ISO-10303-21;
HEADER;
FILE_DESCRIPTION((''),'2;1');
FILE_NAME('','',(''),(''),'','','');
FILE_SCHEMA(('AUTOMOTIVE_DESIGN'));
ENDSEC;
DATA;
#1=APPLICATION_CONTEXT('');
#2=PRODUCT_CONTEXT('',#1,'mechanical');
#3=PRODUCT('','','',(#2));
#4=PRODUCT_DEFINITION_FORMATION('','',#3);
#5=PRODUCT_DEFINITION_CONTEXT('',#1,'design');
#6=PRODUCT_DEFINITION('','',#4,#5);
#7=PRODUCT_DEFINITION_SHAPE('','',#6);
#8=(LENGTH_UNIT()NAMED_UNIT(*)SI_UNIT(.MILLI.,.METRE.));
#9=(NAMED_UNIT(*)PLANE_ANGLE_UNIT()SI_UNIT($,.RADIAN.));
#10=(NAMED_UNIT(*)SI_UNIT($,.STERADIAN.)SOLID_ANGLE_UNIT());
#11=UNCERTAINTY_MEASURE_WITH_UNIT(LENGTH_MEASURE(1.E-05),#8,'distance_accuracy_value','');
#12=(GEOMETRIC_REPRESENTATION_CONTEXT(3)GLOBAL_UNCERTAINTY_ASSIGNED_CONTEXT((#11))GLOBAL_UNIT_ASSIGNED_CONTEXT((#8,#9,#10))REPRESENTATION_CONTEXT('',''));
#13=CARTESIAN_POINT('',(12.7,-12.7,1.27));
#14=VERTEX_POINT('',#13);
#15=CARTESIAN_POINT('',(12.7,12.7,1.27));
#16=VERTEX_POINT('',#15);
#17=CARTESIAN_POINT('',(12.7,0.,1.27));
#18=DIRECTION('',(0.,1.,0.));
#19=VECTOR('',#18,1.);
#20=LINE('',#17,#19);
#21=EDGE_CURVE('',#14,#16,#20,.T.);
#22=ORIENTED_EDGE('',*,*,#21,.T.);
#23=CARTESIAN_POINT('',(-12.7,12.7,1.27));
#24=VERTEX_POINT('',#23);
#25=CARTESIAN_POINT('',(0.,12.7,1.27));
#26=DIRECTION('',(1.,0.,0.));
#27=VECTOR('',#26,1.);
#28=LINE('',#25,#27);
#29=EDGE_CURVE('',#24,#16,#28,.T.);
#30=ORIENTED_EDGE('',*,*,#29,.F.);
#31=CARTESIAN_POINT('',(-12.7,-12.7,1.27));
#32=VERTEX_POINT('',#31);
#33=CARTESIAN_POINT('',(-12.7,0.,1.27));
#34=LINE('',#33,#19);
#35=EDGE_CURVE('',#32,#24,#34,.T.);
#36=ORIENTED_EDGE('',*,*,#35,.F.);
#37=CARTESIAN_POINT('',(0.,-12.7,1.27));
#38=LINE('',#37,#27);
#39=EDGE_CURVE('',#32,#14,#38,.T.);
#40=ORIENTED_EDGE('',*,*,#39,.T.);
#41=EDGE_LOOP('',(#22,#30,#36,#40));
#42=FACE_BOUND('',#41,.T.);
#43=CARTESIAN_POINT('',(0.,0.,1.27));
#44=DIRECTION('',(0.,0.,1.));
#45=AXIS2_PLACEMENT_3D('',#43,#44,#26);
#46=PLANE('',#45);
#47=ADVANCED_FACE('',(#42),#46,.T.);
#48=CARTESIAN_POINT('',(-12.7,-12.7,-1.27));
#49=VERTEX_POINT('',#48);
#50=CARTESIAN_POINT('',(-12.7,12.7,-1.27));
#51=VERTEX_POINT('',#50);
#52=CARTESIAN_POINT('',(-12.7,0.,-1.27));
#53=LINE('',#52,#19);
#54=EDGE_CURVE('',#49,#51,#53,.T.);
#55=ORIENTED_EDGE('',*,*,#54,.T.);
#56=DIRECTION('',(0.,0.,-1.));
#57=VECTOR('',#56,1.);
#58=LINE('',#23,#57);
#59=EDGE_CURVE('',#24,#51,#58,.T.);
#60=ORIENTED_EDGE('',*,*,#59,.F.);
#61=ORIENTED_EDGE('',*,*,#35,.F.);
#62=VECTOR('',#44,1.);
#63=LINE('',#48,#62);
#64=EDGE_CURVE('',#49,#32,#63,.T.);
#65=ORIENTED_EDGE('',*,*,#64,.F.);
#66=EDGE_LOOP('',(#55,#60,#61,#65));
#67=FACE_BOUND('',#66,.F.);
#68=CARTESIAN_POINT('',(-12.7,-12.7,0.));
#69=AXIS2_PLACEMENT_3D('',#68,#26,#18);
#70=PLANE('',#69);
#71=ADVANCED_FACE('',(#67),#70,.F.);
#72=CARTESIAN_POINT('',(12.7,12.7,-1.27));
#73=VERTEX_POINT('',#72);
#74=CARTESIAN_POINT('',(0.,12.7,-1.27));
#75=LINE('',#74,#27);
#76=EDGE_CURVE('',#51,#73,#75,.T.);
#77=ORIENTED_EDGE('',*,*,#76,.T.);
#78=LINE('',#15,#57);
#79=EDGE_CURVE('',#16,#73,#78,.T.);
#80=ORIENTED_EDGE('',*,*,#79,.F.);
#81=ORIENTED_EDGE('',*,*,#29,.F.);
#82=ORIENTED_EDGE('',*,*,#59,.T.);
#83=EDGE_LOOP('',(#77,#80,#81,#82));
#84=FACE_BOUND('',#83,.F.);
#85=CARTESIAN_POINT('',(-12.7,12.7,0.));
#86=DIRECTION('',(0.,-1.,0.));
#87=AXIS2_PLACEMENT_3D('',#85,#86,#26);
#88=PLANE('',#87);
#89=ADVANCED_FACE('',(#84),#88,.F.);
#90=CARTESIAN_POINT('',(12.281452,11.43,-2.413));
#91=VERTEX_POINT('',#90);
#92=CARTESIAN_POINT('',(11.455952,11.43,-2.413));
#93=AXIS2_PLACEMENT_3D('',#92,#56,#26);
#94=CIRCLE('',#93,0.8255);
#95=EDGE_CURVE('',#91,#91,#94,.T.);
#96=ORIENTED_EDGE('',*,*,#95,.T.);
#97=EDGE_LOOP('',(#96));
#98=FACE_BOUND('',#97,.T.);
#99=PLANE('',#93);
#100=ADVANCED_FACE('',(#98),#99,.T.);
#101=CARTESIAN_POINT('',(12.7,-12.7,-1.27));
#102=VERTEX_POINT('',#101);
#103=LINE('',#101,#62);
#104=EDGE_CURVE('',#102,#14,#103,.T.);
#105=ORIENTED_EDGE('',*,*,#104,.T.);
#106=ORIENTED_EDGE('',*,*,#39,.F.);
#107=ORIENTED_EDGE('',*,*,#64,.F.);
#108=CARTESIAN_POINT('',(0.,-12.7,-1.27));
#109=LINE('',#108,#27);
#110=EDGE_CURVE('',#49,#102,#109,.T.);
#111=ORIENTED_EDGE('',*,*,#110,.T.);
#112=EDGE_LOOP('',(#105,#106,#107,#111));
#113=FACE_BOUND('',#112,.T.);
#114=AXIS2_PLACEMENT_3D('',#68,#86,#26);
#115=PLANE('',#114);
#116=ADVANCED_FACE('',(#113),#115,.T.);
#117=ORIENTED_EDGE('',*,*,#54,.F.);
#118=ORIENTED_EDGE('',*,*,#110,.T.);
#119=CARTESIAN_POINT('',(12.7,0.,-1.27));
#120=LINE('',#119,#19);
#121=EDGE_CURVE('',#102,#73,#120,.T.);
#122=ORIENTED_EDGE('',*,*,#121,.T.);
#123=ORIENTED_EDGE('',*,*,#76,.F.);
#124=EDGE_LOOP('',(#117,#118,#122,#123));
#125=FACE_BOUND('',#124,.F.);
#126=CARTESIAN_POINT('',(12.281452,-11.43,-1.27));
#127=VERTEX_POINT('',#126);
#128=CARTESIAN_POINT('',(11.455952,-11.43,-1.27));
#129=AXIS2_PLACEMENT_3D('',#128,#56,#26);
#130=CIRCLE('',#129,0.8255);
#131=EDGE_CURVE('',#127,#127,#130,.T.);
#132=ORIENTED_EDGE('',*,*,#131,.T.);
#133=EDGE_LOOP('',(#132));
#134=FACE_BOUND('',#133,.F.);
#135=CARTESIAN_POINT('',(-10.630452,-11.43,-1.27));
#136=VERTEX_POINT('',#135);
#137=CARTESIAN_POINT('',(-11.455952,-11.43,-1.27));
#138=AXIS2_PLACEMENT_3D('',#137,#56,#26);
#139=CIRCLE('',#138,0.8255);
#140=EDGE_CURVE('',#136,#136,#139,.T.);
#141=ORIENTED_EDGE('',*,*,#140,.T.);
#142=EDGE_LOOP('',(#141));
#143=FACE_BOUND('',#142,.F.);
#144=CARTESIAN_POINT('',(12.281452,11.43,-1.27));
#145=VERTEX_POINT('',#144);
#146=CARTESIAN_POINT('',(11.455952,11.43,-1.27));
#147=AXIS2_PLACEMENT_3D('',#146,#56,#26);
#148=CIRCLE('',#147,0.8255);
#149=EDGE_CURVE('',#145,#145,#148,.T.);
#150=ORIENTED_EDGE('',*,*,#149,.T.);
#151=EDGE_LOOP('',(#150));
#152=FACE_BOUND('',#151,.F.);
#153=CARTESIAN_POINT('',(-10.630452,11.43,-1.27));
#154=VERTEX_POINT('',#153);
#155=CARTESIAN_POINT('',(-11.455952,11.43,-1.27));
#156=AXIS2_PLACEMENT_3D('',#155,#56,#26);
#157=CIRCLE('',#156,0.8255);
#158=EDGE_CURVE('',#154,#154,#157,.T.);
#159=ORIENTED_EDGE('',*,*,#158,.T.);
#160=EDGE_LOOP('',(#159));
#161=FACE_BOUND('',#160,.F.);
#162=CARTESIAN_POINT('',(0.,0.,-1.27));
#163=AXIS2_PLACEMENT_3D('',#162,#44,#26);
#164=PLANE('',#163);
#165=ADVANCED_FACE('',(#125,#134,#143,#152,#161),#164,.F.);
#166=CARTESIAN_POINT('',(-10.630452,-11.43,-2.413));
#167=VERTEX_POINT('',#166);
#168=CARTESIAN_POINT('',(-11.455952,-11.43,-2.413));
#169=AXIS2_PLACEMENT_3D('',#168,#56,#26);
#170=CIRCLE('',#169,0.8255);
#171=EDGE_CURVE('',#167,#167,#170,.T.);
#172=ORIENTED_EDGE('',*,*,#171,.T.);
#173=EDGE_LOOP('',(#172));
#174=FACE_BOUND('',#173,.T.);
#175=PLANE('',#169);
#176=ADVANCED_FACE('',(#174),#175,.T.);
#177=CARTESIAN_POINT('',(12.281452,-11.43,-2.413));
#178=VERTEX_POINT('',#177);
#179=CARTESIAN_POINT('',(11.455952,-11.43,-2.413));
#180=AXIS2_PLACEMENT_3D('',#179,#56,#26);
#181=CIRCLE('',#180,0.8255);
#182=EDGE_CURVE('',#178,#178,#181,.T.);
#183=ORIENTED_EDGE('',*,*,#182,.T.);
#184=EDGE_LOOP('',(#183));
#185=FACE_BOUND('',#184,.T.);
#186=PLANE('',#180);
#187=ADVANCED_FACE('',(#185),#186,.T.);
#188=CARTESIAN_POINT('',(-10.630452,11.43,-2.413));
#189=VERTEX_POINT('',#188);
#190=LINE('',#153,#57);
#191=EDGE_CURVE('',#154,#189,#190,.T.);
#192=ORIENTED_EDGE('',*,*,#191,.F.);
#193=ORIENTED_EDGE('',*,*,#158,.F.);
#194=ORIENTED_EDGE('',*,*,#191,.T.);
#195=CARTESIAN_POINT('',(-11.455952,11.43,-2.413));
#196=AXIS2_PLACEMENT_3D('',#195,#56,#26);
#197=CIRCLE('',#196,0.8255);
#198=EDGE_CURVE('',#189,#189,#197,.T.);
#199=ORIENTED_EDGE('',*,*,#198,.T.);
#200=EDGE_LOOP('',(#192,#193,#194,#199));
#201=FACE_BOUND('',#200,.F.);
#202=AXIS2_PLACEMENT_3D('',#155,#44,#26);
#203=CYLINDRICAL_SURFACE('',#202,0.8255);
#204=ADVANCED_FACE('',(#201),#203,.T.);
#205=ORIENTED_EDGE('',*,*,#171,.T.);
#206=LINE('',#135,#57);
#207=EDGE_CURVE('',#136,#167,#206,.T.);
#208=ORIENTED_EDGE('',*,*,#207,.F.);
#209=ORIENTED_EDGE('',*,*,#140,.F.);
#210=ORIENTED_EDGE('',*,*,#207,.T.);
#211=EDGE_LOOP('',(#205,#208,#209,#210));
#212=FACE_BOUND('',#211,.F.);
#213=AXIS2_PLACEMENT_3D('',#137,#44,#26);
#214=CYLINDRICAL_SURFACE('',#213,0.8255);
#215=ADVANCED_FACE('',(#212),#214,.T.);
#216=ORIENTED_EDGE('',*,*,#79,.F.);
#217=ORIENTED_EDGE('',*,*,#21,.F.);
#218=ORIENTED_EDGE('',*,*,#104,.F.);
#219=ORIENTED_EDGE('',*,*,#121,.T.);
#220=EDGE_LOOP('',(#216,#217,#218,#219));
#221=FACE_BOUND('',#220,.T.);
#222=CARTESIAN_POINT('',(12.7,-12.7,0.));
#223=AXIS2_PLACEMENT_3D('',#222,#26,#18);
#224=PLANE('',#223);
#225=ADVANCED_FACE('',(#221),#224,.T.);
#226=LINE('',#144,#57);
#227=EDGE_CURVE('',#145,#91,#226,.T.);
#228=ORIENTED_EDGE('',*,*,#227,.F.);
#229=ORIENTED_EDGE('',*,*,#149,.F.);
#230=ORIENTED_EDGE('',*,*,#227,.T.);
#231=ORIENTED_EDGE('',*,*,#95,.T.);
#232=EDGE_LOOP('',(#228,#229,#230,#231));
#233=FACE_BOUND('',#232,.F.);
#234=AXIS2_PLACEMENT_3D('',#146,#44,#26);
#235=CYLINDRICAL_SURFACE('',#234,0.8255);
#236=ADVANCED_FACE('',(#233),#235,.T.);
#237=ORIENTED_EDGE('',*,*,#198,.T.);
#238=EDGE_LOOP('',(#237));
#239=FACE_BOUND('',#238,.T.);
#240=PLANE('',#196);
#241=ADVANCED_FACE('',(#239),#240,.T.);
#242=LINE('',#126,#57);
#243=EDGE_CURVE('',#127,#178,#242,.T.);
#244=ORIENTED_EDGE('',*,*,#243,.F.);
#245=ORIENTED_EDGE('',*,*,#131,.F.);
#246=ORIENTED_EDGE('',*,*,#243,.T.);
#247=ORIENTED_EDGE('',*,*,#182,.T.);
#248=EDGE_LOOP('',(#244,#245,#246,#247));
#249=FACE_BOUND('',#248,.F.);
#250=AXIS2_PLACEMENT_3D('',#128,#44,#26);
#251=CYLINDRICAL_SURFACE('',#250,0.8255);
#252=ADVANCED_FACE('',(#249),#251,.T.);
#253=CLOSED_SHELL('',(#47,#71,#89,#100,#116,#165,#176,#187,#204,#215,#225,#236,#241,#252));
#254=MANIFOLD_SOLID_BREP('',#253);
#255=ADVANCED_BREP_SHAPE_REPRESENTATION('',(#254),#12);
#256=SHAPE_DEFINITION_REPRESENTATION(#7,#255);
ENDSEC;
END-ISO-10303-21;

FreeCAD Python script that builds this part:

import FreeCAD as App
import Part
import Sketcher
from FreeCAD import Vector
Q = App.Units.Quantity


def add_polygon(sketch, points):
    """Adds a closed chain of lines whose ends are joined by coincident constraints."""
    first, n = sketch.GeometryCount, len(points)
    for a, b in zip(points, points[1:] + points[:1]):
        sketch.addGeometry(Part.LineSegment(App.Vector(*a, 0), App.Vector(*b, 0)), False)
    for i in range(n):
        sketch.addConstraint(Sketcher.Constraint("Coincident", first + i, 2, first + (i + 1) % n, 1))

doc = App.newDocument("Part")
body = doc.addObject("PartDesign::Body", "Body")

# Sketch on XY plane
sketch1 = doc.addObject("Sketcher::SketchObject", "Sketch")
body.addObject(sketch1)
sketch1.AttachmentSupport = (doc.XY_Plane, [""])
sketch1.MapMode = "FlatFace"
add_polygon(sketch1, [(-13, 13), (-13, -13), (13, -13), (13, 13)])  # lines 0-3
sketch1.addConstraint([
    Sketcher.Constraint("Vertical", 0),
    Sketcher.Constraint("Horizontal", 1),
    Sketcher.Constraint("Vertical", 2),
    Sketcher.Constraint("Horizontal", 3),
    Sketcher.Constraint("Symmetric", 0, 2, 2, 2, -1, 1),
    Sketcher.Constraint("Equal", 3, 0),
    Sketcher.Constraint("DistanceX", 1, 1, 1, 2, Q("1 in")),
])
pad1 = doc.addObject("PartDesign::Pad", "Pad")
body.addObject(pad1)
pad1.Profile = sketch1
pad1.Length = Q("0.1 in")
pad1.Midplane = True

# Sketch on XY plane
sketch2 = doc.addObject("Sketcher::SketchObject", "Sketch001")
body.addObject(sketch2)
sketch2.AttachmentSupport = (doc.XY_Plane, [""])
sketch2.MapMode = "FlatFace"
sketch2.AttachmentOffset = App.Placement(Vector(0, 0, -0.05 * 25.4), App.Rotation())
sketch2.addGeometry([
    Part.Circle(Vector(-11.5, -11.4, 0), Vector(0, 0, 1), 0.8),
    Part.Circle(Vector(11.5, -11.4, 0), Vector(0, 0, 1), 0.8),
    Part.Circle(Vector(11.5, 11.4, 0), Vector(0, 0, 1), 0.8),
    Part.Circle(Vector(-11.5, 11.4, 0), Vector(0, 0, 1), 0.8),
], False)
sketch2.addConstraint([
    Sketcher.Constraint("Equal", 0, 1),
    Sketcher.Constraint("Equal", 1, 2),
    Sketcher.Constraint("Equal", 2, 3),
    Sketcher.Constraint("Symmetric", 0, 3, 2, 3, -1, 1),
    Sketcher.Constraint("Symmetric", 1, 3, 3, 3, -1, 1),
    Sketcher.Constraint("Symmetric", 0, 3, 1, 3, -2),
    Sketcher.Constraint("Diameter", 0, Q("0.065 in")),
    Sketcher.Constraint("DistanceY", 1, 3, 2, 3, Q("0.9 in")),
    Sketcher.Constraint("DistanceX", 0, 3, -1, 1, Q("11.455952 mm")),
])
pad2 = doc.addObject("PartDesign::Pad", "Pad001")
body.addObject(pad2)
pad2.Profile = sketch2
pad2.Length = Q("0.045 in")
pad2.Reversed = True

doc.recompute()
